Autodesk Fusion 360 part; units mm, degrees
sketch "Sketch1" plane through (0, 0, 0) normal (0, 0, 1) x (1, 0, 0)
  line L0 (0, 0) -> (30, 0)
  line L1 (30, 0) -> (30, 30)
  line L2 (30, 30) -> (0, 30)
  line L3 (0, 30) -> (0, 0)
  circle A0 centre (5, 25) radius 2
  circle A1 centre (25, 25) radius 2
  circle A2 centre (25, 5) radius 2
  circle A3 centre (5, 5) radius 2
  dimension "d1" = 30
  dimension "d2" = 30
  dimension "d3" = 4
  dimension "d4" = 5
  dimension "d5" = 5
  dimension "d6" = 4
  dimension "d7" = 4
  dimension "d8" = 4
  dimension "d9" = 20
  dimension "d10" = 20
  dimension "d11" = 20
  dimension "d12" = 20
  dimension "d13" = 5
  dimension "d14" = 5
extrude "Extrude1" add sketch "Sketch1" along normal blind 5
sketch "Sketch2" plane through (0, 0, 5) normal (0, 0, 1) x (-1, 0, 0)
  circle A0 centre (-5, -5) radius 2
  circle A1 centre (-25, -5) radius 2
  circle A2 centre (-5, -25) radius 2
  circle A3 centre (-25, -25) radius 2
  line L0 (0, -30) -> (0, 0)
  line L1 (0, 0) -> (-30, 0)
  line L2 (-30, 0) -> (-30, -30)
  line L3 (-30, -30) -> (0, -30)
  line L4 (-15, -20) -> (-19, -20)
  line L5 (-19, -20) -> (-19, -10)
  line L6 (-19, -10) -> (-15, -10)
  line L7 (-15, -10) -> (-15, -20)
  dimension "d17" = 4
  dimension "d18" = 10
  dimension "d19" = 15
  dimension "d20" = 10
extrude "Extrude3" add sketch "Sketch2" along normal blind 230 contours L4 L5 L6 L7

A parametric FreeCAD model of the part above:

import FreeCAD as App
import Part
import Sketcher
from FreeCAD import Vector

doc = App.newDocument("Part")
params = doc.addObject("Spreadsheet::Sheet", "Params")
for row, (alias, value) in enumerate([
    ("sketch1_diameter", "4 mm"),
    ("sketch1_width", "30 mm"),
    ("pad1_length", "5 mm"),
    ("sketch2_width", "4 mm"),
    ("sketch2_height", "10 mm"),
    ("pad2_length", "230 mm"),
], start=1):
    params.set(f"A{row}", alias)
    params.set(f"B{row}", "=" + value)
    params.setAlias(f"B{row}", alias)

body = doc.addObject("PartDesign::Body", "Body")

sketch1 = body.newObject("Sketcher::SketchObject", "Sketch")
sketch1.AttachmentSupport = (doc.getObject("XY_Plane"), [""])
sketch1.MapMode = "FlatFace"
sketch1.addGeometry(Part.LineSegment(Vector(0, 30, 0), Vector(0, 0, 0)), False)
sketch1.addGeometry(Part.LineSegment(Vector(0, 0, 0), Vector(30, 0, 0)), False)
sketch1.addGeometry(Part.LineSegment(Vector(30, 0, 0), Vector(30, 30, 0)), False)
sketch1.addGeometry(Part.LineSegment(Vector(30, 30, 0), Vector(0, 30, 0)), False)
sketch1.addGeometry(Part.Circle(Vector(5, 5, 0), Vector(0, 0, 1), 2), False)
sketch1.addGeometry(Part.Circle(Vector(25, 5, 0), Vector(0, 0, 1), 2), False)
sketch1.addGeometry(Part.Circle(Vector(5, 25, 0), Vector(0, 0, 1), 2), False)
sketch1.addGeometry(Part.Circle(Vector(25, 25, 0), Vector(0, 0, 1), 2), False)
sketch1.addConstraint(Sketcher.Constraint("Coincident", 0, 2, 1, 1))
sketch1.addConstraint(Sketcher.Constraint("Coincident", 1, 2, 2, 1))
sketch1.addConstraint(Sketcher.Constraint("Coincident", 2, 2, 3, 1))
sketch1.addConstraint(Sketcher.Constraint("Coincident", 3, 2, 0, 1))
sketch1.addConstraint(Sketcher.Constraint("Vertical", 0))
sketch1.addConstraint(Sketcher.Constraint("Horizontal", 1))
sketch1.addConstraint(Sketcher.Constraint("Vertical", 2))
sketch1.addConstraint(Sketcher.Constraint("Horizontal", 3))
sketch1.addConstraint(Sketcher.Constraint("Coincident", 0, 2, -1, 1))
sketch1.addConstraint(Sketcher.Constraint("Equal", 4, 5))
sketch1.addConstraint(Sketcher.Constraint("Equal", 5, 6))
sketch1.addConstraint(Sketcher.Constraint("Equal", 6, 7))
sketch1.addConstraint(Sketcher.Constraint("Horizontal", 4, 3, 5, 3))
sketch1.addConstraint(Sketcher.Constraint("Horizontal", 6, 3, 7, 3))
sketch1.addConstraint(Sketcher.Constraint("Vertical", 4, 3, 6, 3))
sketch1.addConstraint(Sketcher.Constraint("Vertical", 5, 3, 7, 3))
sketch1.addConstraint(Sketcher.Constraint("Equal", 3, 0))
sketch1.addConstraint(Sketcher.Constraint("Diameter", 4, 4.0))
sketch1.addConstraint(Sketcher.Constraint("DistanceX", 1, 1, 1, 2, 30.0))
sketch1.addConstraint(Sketcher.Constraint("DistanceX", -1, 1, 4, 3, 5.0))
sketch1.addConstraint(Sketcher.Constraint("DistanceY", -1, 1, 4, 3, 5.0))
sketch1.addConstraint(Sketcher.Constraint("DistanceX", 4, 3, 5, 3, 20.0))
sketch1.addConstraint(Sketcher.Constraint("DistanceY", 4, 3, 6, 3, 20.0))
sketch1.setExpression("Constraints[17]", "Params.sketch1_diameter")
sketch1.setExpression("Constraints[18]", "Params.sketch1_width")
pad1 = body.newObject("PartDesign::Pad", "Pad")
pad1.Profile = sketch1
pad1.setExpression("Length", "Params.pad1_length")

sketch2 = body.newObject("Sketcher::SketchObject", "Sketch001")
sketch2.AttachmentSupport = (doc.getObject("XY_Plane"), [""])
sketch2.MapMode = "FlatFace"
sketch2.AttachmentOffset = App.Placement(Vector(0, 0, 5), App.Rotation())
sketch2.addGeometry(Part.LineSegment(Vector(19, 20, 0), Vector(15, 20, 0)), False)
sketch2.addGeometry(Part.LineSegment(Vector(15, 20, 0), Vector(15, 10, 0)), False)
sketch2.addGeometry(Part.LineSegment(Vector(15, 10, 0), Vector(19, 10, 0)), False)
sketch2.addGeometry(Part.LineSegment(Vector(19, 10, 0), Vector(19, 20, 0)), False)
sketch2.addConstraint(Sketcher.Constraint("Coincident", 0, 2, 1, 1))
sketch2.addConstraint(Sketcher.Constraint("Coincident", 1, 2, 2, 1))
sketch2.addConstraint(Sketcher.Constraint("Coincident", 2, 2, 3, 1))
sketch2.addConstraint(Sketcher.Constraint("Coincident", 3, 2, 0, 1))
sketch2.addConstraint(Sketcher.Constraint("Horizontal", 0))
sketch2.addConstraint(Sketcher.Constraint("Vertical", 1))
sketch2.addConstraint(Sketcher.Constraint("Horizontal", 2))
sketch2.addConstraint(Sketcher.Constraint("Vertical", 3))
sketch2.addConstraint(Sketcher.Constraint("DistanceX", 0, 2, 0, 1, 4.0))
sketch2.addConstraint(Sketcher.Constraint("DistanceY", 1, 2, 1, 1, 10.0))
sketch2.addConstraint(Sketcher.Constraint("DistanceX", -1, 1, 0, 2, 15.0))
sketch2.addConstraint(Sketcher.Constraint("DistanceY", -1, 1, 1, 2, 10.0))
sketch2.setExpression("Constraints[8]", "Params.sketch2_width")
sketch2.setExpression("Constraints[9]", "Params.sketch2_height")
pad2 = body.newObject("PartDesign::Pad", "Pad001")
pad2.Profile = sketch2
pad2.setExpression("Length", "Params.pad2_length")

doc.recompute()
